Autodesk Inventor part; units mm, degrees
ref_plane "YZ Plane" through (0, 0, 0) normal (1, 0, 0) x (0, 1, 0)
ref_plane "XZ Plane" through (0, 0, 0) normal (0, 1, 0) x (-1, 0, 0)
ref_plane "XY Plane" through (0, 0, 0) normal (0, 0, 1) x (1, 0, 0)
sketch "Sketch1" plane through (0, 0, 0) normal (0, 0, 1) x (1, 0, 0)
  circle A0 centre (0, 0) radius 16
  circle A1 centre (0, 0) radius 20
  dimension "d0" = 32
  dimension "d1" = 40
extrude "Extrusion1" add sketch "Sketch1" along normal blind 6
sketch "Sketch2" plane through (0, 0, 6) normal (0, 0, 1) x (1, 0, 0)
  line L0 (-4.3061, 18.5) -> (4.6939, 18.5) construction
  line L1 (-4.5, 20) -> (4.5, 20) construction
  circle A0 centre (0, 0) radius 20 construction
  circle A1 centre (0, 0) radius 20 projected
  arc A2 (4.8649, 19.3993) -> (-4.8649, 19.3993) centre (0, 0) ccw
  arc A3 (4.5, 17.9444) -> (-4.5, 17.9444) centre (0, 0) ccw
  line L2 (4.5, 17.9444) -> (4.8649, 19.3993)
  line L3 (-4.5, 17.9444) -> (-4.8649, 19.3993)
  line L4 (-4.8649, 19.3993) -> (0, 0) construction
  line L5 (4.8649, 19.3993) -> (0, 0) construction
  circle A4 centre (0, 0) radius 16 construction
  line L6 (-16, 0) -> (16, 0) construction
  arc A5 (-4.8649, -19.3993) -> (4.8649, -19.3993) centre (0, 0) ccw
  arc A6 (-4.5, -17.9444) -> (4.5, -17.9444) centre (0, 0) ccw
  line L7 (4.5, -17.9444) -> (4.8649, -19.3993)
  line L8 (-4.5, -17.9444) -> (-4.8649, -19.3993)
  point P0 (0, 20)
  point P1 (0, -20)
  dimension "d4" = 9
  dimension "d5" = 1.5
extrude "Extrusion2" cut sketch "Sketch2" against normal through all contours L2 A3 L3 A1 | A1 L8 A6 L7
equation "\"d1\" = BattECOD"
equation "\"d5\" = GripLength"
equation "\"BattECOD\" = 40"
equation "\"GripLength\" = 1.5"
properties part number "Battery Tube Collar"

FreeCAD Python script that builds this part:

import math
import FreeCAD as App
import Part
import Sketcher
Q = App.Units.Quantity

doc = App.newDocument("Part")
body = doc.addObject("PartDesign::Body", "Body")

# Sketch on XY plane
sketch1 = body.newObject("Sketcher::SketchObject", "Sketch")
sketch1.AttachmentSupport = (doc.getObject("XY_Plane"), [""])
sketch1.MapMode = "FlatFace"
sketch1.addGeometry([
    Part.Circle(App.Vector(0, 0, 0), App.Vector(0, 0, 1), 20),
    Part.Circle(App.Vector(0, 0, 0), App.Vector(0, 0, 1), 16),
], False)
sketch1.addConstraint([
    Sketcher.Constraint("Coincident", 0, 3, -1, 1),
    Sketcher.Constraint("Coincident", 1, 3, -1, 1),
    Sketcher.Constraint("Diameter", 0, 40.0),
    Sketcher.Constraint("Diameter", 1, 32.0),
])
pad1 = body.newObject("PartDesign::Pad", "Pad")
pad1.Profile = sketch1
pad1.Length = 6

# Sketch on XY plane
sketch2 = body.newObject("Sketcher::SketchObject", "Sketch001")
sketch2.AttachmentSupport = (doc.getObject("XY_Plane"), [""])
sketch2.MapMode = "FlatFace"
sketch2.AttachmentOffset = App.Placement(App.Vector(0, 0, 6), App.Rotation())
sketch2.addGeometry([
    Part.LineSegment(App.Vector(4.5, 17.9, 0), App.Vector(4.9, 19.4, 0)),  # 0
    Part.ArcOfCircle(Part.Circle(App.Vector(0, 0, 0), App.Vector(0, 0, 1), 20), math.radians(76), math.radians(104)),  # 1
    Part.LineSegment(App.Vector(-4.9, 19.4, 0), App.Vector(-4.5, 17.9, 0)),  # 2
    Part.ArcOfCircle(Part.Circle(App.Vector(0, 0, 0), App.Vector(0, 0, 1), 18.5), math.radians(76), math.radians(104)),  # 3
    Part.ArcOfCircle(Part.Circle(App.Vector(0, 0, 0), App.Vector(0, 0, 1), 20), math.radians(-104), math.radians(-76)),  # 4
    Part.LineSegment(App.Vector(4.9, -19.4, 0), App.Vector(4.5, -17.9, 0)),  # 5
    Part.ArcOfCircle(Part.Circle(App.Vector(0, 0, 0), App.Vector(0, 0, 1), 18.5), math.radians(-104), math.radians(-76)),  # 6
    Part.LineSegment(App.Vector(-4.5, -17.9, 0), App.Vector(-4.9, -19.4, 0)),  # 7
], False)
sketch2.addConstraint([
    Sketcher.Constraint("Coincident", 0, 2, 1, 1),
    Sketcher.Constraint("Coincident", 1, 2, 2, 1),
    Sketcher.Constraint("Coincident", 2, 2, 3, 2),
    Sketcher.Constraint("Coincident", 3, 1, 0, 1),
    Sketcher.Constraint("Coincident", 4, 2, 5, 1),
    Sketcher.Constraint("Coincident", 5, 2, 6, 2),
    Sketcher.Constraint("Coincident", 6, 1, 7, 1),
    Sketcher.Constraint("Coincident", 7, 2, 4, 1),
    Sketcher.Constraint("Coincident", 1, 3, -1, 1),
    Sketcher.Constraint("Coincident", 3, 3, -1, 1),
    Sketcher.Constraint("Coincident", 4, 3, -1, 1),
    Sketcher.Constraint("Coincident", 6, 3, -1, 1),
    Sketcher.Constraint("Equal", 1, 4),
    Sketcher.Constraint("Equal", 3, 6),
    Sketcher.Constraint("Parallel", 2, 5),
    Sketcher.Constraint("Parallel", 0, 7),
    Sketcher.Constraint("Horizontal", 0, 2, 1, 2),
    Sketcher.Constraint("Horizontal", 2, 2, 3, 1),
    Sketcher.Constraint("Horizontal", 5, 2, 6, 1),
    Sketcher.Constraint("Vertical", 0, 2, 4, 2),
    Sketcher.Constraint("Radius", 1, 20.0),
    Sketcher.Constraint("DistanceX", 2, 2, 3, 1, 9.0),
    Sketcher.Constraint("Distance", 0, 1.5),
    Sketcher.Constraint("Angle", 0, Q("75.9202 deg")),
])
pocket1 = body.newObject("PartDesign::Pocket", "Pocket")
pocket1.Profile = sketch2
pocket1.Type = "ThroughAll"

doc.recompute()
